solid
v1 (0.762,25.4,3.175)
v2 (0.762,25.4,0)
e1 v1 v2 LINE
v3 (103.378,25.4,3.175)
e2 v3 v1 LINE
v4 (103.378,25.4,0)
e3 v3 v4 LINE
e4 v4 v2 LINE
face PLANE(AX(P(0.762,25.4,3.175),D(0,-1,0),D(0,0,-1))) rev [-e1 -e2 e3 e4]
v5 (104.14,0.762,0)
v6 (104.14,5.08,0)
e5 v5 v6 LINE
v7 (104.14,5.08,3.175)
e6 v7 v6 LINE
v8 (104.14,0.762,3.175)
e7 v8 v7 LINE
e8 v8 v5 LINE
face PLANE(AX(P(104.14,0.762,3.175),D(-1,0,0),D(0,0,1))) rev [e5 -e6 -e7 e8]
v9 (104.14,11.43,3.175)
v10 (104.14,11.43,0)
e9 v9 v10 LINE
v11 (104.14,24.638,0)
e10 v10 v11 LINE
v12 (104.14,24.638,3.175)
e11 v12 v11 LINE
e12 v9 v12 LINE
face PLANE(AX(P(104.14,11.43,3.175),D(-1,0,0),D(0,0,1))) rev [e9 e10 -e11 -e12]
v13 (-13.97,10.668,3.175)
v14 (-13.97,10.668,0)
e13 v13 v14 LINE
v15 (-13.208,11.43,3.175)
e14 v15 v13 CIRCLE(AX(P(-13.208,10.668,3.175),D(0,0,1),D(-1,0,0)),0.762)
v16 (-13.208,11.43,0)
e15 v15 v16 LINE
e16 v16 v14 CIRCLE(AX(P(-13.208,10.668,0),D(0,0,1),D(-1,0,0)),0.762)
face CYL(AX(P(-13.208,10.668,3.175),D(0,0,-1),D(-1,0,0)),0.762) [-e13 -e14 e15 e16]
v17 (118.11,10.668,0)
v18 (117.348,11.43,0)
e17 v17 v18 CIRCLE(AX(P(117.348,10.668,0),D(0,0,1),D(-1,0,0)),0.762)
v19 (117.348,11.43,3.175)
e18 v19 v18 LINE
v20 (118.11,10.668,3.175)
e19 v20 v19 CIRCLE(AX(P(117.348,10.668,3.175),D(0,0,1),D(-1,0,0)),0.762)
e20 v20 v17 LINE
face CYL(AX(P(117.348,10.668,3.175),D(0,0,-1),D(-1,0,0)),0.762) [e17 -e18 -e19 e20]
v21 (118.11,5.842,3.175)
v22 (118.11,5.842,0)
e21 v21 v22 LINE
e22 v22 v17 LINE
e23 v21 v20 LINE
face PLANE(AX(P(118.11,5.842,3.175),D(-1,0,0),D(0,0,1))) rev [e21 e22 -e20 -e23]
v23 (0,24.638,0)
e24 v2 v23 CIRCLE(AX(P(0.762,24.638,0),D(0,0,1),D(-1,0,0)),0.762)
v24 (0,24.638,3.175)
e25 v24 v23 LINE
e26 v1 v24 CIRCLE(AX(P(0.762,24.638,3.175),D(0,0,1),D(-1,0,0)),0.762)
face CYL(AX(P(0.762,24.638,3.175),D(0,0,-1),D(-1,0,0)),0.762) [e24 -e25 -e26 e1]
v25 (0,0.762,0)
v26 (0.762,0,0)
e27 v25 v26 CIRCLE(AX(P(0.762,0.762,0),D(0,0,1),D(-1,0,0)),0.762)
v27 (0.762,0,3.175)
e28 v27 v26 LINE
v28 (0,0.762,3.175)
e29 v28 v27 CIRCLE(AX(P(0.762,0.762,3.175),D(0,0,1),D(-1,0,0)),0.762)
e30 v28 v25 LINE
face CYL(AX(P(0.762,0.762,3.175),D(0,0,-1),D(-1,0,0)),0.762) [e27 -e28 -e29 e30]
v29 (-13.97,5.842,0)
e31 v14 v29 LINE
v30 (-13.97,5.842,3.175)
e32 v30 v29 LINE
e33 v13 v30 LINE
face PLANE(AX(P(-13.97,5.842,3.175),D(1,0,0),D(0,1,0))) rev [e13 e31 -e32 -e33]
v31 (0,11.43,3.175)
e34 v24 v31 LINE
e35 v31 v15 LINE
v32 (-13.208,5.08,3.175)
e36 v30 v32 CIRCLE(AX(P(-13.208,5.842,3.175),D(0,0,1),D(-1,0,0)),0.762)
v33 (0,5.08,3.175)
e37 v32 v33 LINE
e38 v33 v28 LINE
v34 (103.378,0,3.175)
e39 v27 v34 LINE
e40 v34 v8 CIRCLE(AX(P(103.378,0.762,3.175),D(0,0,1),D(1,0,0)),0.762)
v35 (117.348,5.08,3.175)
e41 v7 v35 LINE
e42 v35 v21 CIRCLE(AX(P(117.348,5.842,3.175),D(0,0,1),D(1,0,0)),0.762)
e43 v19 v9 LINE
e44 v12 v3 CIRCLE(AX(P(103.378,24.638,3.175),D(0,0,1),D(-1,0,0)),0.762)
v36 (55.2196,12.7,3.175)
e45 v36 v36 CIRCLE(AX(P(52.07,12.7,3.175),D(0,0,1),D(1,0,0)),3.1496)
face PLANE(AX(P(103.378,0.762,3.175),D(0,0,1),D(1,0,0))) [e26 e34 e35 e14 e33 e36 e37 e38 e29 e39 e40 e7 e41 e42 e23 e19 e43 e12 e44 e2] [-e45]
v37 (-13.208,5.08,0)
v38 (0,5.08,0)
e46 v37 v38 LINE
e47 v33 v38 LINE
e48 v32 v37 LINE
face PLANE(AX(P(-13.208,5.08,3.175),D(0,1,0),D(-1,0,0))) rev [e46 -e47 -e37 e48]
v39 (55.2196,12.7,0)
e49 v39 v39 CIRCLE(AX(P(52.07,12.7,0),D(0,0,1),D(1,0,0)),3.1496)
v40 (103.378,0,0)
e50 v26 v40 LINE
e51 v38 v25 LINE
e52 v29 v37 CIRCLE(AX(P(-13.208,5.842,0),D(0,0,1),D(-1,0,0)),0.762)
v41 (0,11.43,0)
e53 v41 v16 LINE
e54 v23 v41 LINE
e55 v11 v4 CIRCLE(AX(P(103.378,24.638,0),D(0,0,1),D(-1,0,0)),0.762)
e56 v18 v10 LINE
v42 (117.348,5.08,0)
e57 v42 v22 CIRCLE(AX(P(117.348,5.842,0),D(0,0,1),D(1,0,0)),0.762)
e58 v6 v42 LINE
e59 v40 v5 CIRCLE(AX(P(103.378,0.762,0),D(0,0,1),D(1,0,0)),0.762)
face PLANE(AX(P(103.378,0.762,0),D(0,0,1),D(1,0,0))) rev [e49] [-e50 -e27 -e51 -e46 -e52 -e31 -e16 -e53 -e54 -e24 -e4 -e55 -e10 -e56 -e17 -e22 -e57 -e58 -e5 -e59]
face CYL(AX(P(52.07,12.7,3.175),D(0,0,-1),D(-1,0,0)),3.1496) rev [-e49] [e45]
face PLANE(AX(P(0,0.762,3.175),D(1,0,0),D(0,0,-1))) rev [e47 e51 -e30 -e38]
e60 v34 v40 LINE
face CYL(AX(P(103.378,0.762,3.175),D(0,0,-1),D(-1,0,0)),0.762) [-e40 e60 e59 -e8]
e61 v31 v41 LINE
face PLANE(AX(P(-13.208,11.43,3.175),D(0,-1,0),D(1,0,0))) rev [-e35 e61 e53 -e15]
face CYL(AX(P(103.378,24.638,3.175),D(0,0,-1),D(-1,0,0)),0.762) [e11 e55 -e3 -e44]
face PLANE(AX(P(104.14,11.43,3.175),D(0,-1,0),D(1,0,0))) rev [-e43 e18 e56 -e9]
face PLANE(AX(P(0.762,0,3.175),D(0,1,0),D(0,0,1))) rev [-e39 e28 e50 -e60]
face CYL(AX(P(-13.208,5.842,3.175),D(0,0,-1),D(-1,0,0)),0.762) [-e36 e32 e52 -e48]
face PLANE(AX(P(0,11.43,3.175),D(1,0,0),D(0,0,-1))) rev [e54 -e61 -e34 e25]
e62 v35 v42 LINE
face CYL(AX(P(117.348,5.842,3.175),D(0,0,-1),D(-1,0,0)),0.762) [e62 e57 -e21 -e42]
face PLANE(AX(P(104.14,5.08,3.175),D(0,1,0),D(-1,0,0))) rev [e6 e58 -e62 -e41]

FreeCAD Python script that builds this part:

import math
import FreeCAD as App
import Part
import Sketcher

V = App.Vector
Q = App.Units.Quantity

doc = App.newDocument("Part")
body = doc.addObject("PartDesign::Body", "Body")

# Sketch on XY plane
sketch1 = body.newObject("Sketcher::SketchObject", "Sketch")
sketch1.AttachmentSupport = (doc.getObject("XY_Plane"), [""])
sketch1.MapMode = "FlatFace"
sketch1.addGeometry([
    Part.LineSegment(V(0.8, 0, 0), V(103.4, 0, 0)),  # 0
    Part.ArcOfCircle(Part.Circle(V(103.4, 0.8, 0), V(0, 0, 1), 0.8), math.radians(-90), math.radians(0)),  # 1
    Part.LineSegment(V(104.1, 0.8, 0), V(104.1, 5.1, 0)),  # 2
    Part.LineSegment(V(104.1, 5.1, 0), V(117.3, 5.1, 0)),  # 3
    Part.ArcOfCircle(Part.Circle(V(117.3, 5.8, 0), V(0, 0, 1), 0.8), math.radians(-90), math.radians(0)),  # 4
    Part.LineSegment(V(118.1, 5.8, 0), V(118.1, 10.7, 0)),  # 5
    Part.ArcOfCircle(Part.Circle(V(117.3, 10.7, 0), V(0, 0, 1), 0.8), math.radians(0), math.radians(90)),  # 6
    Part.LineSegment(V(117.3, 11.4, 0), V(104.1, 11.4, 0)),  # 7
    Part.LineSegment(V(104.1, 11.4, 0), V(104.1, 24.6, 0)),  # 8
    Part.ArcOfCircle(Part.Circle(V(103.4, 24.6, 0), V(0, 0, 1), 0.8), math.radians(0), math.radians(90)),  # 9
    Part.LineSegment(V(103.4, 25.4, 0), V(0.8, 25.4, 0)),  # 10
    Part.ArcOfCircle(Part.Circle(V(0.8, 24.6, 0), V(0, 0, 1), 0.8), math.radians(90), math.radians(180)),  # 11
    Part.LineSegment(V(0, 24.6, 0), V(0, 11.4, 0)),  # 12
    Part.LineSegment(V(0, 11.4, 0), V(-13.2, 11.4, 0)),  # 13
    Part.ArcOfCircle(Part.Circle(V(-13.2, 10.7, 0), V(0, 0, 1), 0.8), math.radians(90), math.radians(180)),  # 14
    Part.LineSegment(V(-14, 10.7, 0), V(-14, 5.8, 0)),  # 15
    Part.ArcOfCircle(Part.Circle(V(-13.2, 5.8, 0), V(0, 0, 1), 0.8), math.radians(-180), math.radians(-90)),  # 16
    Part.LineSegment(V(-13.2, 5.1, 0), V(0, 5.1, 0)),  # 17
    Part.LineSegment(V(0, 5.1, 0), V(0, 0.8, 0)),  # 18
    Part.ArcOfCircle(Part.Circle(V(0.8, 0.8, 0), V(0, 0, 1), 0.8), math.radians(-180), math.radians(-90)),  # 19
    Part.Circle(V(52.1, 12.7, 0), V(0, 0, 1), 3.1),  # 20
], False)
sketch1.addConstraint([
    Sketcher.Constraint("Tangent", 0, 2, 1, 1),
    Sketcher.Constraint("Tangent", 1, 2, 2, 1),
    Sketcher.Constraint("Coincident", 2, 2, 3, 1),
    Sketcher.Constraint("Tangent", 3, 2, 4, 1),
    Sketcher.Constraint("Tangent", 4, 2, 5, 1),
    Sketcher.Constraint("Tangent", 5, 2, 6, 1),
    Sketcher.Constraint("Tangent", 6, 2, 7, 1),
    Sketcher.Constraint("Coincident", 7, 2, 8, 1),
    Sketcher.Constraint("Tangent", 8, 2, 9, 1),
    Sketcher.Constraint("Tangent", 9, 2, 10, 1),
    Sketcher.Constraint("Tangent", 10, 2, 11, 1),
    Sketcher.Constraint("Tangent", 11, 2, 12, 1),
    Sketcher.Constraint("Coincident", 12, 2, 13, 1),
    Sketcher.Constraint("Tangent", 13, 2, 14, 1),
    Sketcher.Constraint("Tangent", 14, 2, 15, 1),
    Sketcher.Constraint("Tangent", 15, 2, 16, 1),
    Sketcher.Constraint("Tangent", 16, 2, 17, 1),
    Sketcher.Constraint("Coincident", 17, 2, 18, 1),
    Sketcher.Constraint("Tangent", 18, 2, 19, 1),
    Sketcher.Constraint("Tangent", 19, 2, 0, 1),
    Sketcher.Constraint("Horizontal", 0),
    Sketcher.Constraint("Vertical", 2),
    Sketcher.Constraint("Horizontal", 3),
    Sketcher.Constraint("Vertical", 5),
    Sketcher.Constraint("Horizontal", 7),
    Sketcher.Constraint("Vertical", 8),
    Sketcher.Constraint("Horizontal", 10),
    Sketcher.Constraint("Vertical", 12),
    Sketcher.Constraint("Horizontal", 13),
    Sketcher.Constraint("Vertical", 15),
    Sketcher.Constraint("Horizontal", 17),
    Sketcher.Constraint("Vertical", 18),
    Sketcher.Constraint("Equal", 1, 4),
    Sketcher.Constraint("Equal", 4, 6),
    Sketcher.Constraint("Equal", 6, 9),
    Sketcher.Constraint("Equal", 9, 11),
    Sketcher.Constraint("Equal", 11, 14),
    Sketcher.Constraint("Equal", 14, 16),
    Sketcher.Constraint("Equal", 16, 19),
    Sketcher.Constraint("PointOnObject", 0, 2, -1),
    Sketcher.Constraint("PointOnObject", 11, 2, -2),
    Sketcher.Constraint("PointOnObject", 17, 2, -2),
    Sketcher.Constraint("Horizontal", 6, 3, 14, 3),
    Sketcher.Constraint("Horizontal", 4, 3, 16, 3),
    Sketcher.Constraint("Vertical", 1, 3, 9, 3),
    Sketcher.Constraint("Equal", 7, 13),
    Sketcher.Constraint("Equal", 17, 8),
    Sketcher.Constraint("Radius", 1, Q("0.03 in")),
    Sketcher.Constraint("Diameter", 20, Q("0.248 in")),
    Sketcher.Constraint("DistanceY", -1, 1, 9, 2, Q("1 in")),
    Sketcher.Constraint("DistanceX", 0, 1, 0, 2, Q("4.04 in")),
    Sketcher.Constraint("DistanceX", 3, 1, 3, 2, Q("0.52 in")),
    Sketcher.Constraint("DistanceY", 2, 1, 2, 2, Q("0.17 in")),
    Sketcher.Constraint("DistanceY", -1, 1, 20, 3, Q("0.5 in")),
    Sketcher.Constraint("DistanceX", -1, 1, 20, 3, Q("2.05 in")),
])
pad1 = body.newObject("PartDesign::Pad", "Pad")
pad1.Profile = sketch1
pad1.Length = Q("0.125 in")

doc.recompute()
